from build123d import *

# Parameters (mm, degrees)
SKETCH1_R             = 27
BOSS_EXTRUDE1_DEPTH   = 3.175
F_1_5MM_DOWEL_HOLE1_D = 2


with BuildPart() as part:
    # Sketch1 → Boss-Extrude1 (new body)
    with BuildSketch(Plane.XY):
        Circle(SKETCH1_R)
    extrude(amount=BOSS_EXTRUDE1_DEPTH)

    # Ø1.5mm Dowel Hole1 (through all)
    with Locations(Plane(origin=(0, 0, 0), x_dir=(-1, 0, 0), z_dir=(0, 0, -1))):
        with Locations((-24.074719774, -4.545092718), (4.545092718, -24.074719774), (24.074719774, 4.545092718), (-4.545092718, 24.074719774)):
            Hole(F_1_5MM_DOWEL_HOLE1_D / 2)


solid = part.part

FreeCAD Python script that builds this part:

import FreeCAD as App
import Part
import Sketcher
Q = App.Units.Quantity

doc = App.newDocument("Part")
body = doc.addObject("PartDesign::Body", "Body")

sketch1 = body.newObject("Sketcher::SketchObject", "Sketch")
sketch1.AttachmentSupport = (doc.getObject("XY_Plane"), [""])
sketch1.MapMode = "FlatFace"
sketch1.addGeometry(Part.Circle(App.Vector(0, 0, 0), App.Vector(0, 0, 1), 27), False)
sketch1.addConstraint(Sketcher.Constraint("Coincident", 0, 3, -1, 1))
sketch1.addConstraint(Sketcher.Constraint("Diameter", 0, Q("54 mm")))
pad1 = body.newObject("PartDesign::Pad", "Pad")
pad1.Profile = sketch1
pad1.Length = 3.175

sketch2 = body.newObject("Sketcher::SketchObject", "Sketch001")
sketch2.AttachmentSupport = (doc.getObject("XY_Plane"), [""])
sketch2.MapMode = "FlatFace"
sketch2.addGeometry(Part.Circle(App.Vector(24.07472, -4.545093, 0), App.Vector(0, 0, 1), 1), False)
sketch2.addGeometry(Part.Circle(App.Vector(-4.545093, -24.07472, 0), App.Vector(0, 0, 1), 1), False)
sketch2.addGeometry(Part.Circle(App.Vector(-24.07472, 4.545093, 0), App.Vector(0, 0, 1), 1), False)
sketch2.addGeometry(Part.Circle(App.Vector(4.545093, 24.07472, 0), App.Vector(0, 0, 1), 1), False)
sketch2.addConstraint(Sketcher.Constraint("Equal", 0, 1))
sketch2.addConstraint(Sketcher.Constraint("Equal", 1, 2))
sketch2.addConstraint(Sketcher.Constraint("Equal", 2, 3))
sketch2.addConstraint(Sketcher.Constraint("Symmetric", 0, 3, 2, 3, -1, 1))
sketch2.addConstraint(Sketcher.Constraint("Symmetric", 1, 3, 3, 3, -1, 1))
sketch2.addConstraint(Sketcher.Constraint("Diameter", 0, Q("2 mm")))
sketch2.addConstraint(Sketcher.Constraint("DistanceX", -1, 1, 0, 3, Q("24.07472 mm")))
sketch2.addConstraint(Sketcher.Constraint("DistanceY", 1, 3, -1, 1, Q("24.07472 mm")))
sketch2.addConstraint(Sketcher.Constraint("DistanceY", 0, 3, -1, 1, Q("4.545093 mm")))
sketch2.addConstraint(Sketcher.Constraint("DistanceX", 1, 3, -1, 1, Q("4.545093 mm")))
doc.recompute()
hole = body.newObject("PartDesign::Hole", "Hole")
hole.Profile = sketch2
hole.ThreadType = "None"
hole.Diameter = 2
hole.DepthType = "ThroughAll"
hole.Reversed = True

doc.recompute()
